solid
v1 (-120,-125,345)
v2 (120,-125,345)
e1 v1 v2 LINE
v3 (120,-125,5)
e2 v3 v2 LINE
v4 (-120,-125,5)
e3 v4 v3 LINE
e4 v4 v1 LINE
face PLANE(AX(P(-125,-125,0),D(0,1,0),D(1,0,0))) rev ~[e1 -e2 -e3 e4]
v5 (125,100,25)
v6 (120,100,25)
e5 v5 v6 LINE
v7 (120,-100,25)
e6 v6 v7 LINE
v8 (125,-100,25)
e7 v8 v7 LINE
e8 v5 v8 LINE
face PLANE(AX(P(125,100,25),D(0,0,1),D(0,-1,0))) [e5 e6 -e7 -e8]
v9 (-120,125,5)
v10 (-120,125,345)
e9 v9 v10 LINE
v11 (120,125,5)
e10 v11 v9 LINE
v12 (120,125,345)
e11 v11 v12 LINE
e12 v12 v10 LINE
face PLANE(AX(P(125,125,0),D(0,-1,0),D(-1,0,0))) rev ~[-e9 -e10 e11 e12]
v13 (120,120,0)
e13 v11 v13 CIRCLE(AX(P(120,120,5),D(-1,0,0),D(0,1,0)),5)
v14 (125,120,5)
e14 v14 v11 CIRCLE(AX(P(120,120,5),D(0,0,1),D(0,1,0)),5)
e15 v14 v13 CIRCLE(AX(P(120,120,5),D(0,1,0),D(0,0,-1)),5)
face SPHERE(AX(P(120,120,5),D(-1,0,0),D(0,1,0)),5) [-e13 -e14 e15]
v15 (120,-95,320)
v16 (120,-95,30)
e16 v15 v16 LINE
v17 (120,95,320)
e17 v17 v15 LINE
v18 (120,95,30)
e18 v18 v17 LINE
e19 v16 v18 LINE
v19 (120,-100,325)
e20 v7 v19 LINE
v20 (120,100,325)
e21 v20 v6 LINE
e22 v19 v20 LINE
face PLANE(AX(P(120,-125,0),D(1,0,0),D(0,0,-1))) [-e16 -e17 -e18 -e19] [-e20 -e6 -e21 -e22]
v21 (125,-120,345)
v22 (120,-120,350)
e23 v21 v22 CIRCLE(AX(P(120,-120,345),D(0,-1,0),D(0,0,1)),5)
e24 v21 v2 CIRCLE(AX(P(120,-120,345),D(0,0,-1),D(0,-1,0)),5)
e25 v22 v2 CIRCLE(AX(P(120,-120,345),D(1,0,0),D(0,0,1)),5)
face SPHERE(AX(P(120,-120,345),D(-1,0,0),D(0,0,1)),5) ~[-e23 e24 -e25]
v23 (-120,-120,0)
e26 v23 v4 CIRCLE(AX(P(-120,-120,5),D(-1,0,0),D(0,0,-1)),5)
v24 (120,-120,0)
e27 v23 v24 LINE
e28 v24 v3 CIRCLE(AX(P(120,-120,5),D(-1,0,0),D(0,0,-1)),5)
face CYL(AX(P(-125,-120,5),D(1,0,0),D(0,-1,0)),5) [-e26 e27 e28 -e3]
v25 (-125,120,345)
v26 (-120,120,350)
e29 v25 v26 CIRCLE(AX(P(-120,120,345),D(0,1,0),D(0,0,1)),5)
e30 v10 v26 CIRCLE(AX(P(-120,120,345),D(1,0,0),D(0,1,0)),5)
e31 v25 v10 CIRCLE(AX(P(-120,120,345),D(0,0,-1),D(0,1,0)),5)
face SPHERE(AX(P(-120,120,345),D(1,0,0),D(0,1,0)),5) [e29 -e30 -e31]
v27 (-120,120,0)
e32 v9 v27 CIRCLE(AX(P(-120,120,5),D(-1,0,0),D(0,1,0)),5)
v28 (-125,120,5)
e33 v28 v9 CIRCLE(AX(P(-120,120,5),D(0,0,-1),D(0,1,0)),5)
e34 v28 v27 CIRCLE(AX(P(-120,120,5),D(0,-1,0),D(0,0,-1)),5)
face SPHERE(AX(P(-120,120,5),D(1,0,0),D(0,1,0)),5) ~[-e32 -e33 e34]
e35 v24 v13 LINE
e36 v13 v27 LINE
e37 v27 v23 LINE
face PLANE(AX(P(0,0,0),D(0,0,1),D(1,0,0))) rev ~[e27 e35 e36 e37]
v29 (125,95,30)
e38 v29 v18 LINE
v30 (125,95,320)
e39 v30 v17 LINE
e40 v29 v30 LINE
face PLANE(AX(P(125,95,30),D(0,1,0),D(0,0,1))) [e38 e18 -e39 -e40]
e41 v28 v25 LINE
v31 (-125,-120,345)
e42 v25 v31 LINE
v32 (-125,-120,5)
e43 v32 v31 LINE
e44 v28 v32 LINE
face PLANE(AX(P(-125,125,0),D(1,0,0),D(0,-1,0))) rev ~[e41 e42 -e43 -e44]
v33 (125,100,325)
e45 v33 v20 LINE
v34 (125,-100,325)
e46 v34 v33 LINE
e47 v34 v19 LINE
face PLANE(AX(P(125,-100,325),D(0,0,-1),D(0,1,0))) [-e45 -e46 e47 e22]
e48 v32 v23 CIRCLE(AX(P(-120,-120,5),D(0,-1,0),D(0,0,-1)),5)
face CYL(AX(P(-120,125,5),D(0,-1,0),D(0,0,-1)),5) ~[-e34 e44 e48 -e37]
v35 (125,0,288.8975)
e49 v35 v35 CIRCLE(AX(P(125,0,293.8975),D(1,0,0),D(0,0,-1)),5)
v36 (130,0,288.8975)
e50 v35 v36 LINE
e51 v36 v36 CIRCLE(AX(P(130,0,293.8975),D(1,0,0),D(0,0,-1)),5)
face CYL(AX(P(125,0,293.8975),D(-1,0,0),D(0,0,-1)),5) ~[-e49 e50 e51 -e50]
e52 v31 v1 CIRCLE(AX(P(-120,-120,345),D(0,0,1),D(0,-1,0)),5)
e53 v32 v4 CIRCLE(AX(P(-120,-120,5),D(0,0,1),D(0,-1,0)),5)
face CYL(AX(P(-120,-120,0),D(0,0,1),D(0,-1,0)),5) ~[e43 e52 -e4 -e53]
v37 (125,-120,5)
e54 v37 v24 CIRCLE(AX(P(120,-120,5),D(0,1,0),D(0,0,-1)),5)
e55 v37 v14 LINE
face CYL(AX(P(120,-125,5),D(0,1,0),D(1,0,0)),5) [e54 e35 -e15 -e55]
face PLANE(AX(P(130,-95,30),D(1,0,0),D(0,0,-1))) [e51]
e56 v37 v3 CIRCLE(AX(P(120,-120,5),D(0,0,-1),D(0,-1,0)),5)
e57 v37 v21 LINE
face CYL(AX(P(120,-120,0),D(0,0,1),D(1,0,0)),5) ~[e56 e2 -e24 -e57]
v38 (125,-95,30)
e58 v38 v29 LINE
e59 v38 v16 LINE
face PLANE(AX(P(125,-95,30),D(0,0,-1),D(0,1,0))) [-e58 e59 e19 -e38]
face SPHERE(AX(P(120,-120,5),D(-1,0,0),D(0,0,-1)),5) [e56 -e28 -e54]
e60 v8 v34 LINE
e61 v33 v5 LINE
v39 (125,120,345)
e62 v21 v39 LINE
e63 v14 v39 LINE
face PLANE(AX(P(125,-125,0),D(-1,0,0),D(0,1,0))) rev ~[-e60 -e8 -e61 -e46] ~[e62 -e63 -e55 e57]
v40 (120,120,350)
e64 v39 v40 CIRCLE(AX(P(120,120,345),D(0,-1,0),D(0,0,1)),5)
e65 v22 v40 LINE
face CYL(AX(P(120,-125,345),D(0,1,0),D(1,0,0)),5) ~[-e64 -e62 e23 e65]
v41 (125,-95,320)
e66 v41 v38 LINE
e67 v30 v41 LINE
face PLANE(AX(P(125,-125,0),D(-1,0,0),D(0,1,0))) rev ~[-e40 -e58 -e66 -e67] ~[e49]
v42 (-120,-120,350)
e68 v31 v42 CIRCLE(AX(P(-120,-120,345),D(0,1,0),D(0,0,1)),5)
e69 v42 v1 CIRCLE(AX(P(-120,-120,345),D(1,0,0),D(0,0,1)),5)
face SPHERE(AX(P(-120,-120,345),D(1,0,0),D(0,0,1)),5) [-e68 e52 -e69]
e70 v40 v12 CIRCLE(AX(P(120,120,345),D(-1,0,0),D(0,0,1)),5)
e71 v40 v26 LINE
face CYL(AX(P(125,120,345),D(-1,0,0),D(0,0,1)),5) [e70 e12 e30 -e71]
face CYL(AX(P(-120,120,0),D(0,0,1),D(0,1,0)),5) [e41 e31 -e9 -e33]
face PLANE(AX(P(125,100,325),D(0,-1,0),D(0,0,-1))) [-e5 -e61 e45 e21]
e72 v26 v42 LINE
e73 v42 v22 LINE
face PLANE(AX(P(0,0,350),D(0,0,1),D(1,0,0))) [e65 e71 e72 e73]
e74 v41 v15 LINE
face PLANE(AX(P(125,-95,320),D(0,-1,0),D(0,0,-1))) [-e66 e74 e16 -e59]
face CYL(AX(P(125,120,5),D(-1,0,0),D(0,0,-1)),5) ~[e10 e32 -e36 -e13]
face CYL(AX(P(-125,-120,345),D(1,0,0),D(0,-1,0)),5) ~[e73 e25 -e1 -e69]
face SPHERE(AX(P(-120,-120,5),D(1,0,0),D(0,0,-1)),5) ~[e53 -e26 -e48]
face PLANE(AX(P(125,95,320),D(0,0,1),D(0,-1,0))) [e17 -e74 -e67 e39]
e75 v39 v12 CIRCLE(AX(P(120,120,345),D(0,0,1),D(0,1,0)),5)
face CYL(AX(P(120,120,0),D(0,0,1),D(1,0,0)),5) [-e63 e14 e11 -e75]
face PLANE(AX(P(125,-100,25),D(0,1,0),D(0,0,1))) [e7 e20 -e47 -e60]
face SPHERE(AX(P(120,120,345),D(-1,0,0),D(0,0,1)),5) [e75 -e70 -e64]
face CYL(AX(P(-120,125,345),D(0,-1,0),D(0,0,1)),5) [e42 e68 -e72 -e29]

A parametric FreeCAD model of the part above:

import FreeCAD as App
import Part
import Sketcher
Q = App.Units.Quantity


def edges_at(feature, points):
    """Names of the edges that pass closest to the given points."""
    edges = feature.Shape.Edges
    near = lambda p: min(range(len(edges)), key=lambda i: edges[i].distToShape(Part.Vertex(*p))[0])
    return sorted({f"Edge{near(p) + 1}" for p in points})


def add_polygon(sketch, points):
    """Adds a closed chain of lines whose ends are joined by coincident constraints."""
    first, n = sketch.GeometryCount, len(points)
    for a, b in zip(points, points[1:] + points[:1]):
        sketch.addGeometry(Part.LineSegment(App.Vector(*a, 0), App.Vector(*b, 0)), False)
    for i in range(n):
        sketch.addConstraint(Sketcher.Constraint("Coincident", first + i, 2, first + (i + 1) % n, 1))

doc = App.newDocument("Part")
body = doc.addObject("PartDesign::Body", "Body")

sketch1 = body.newObject("Sketcher::SketchObject", "Sketch")
sketch1.AttachmentSupport = (doc.getObject("XY_Plane"), [""])
sketch1.MapMode = "FlatFace"
add_polygon(sketch1, [(125, -125), (125, 125), (-125, 125), (-125, -125)])
sketch1.addConstraint([
    Sketcher.Constraint("Vertical", 0),
    Sketcher.Constraint("Horizontal", 1),
    Sketcher.Constraint("Vertical", 2),
    Sketcher.Constraint("Horizontal", 3),
    Sketcher.Constraint("Symmetric", 0, 2, 2, 2, -1, 1),
    Sketcher.Constraint("Equal", 3, 0),
    Sketcher.Constraint("DistanceX", 1, 2, 1, 1, Q("250 mm")),
])
pad1 = body.newObject("PartDesign::Pad", "Pad")
pad1.Profile = sketch1
pad1.Length = 350

sketch2 = body.newObject("Sketcher::SketchObject", "Sketch001")
sketch2.AttachmentSupport = (doc.getObject("YZ_Plane"), [""])
sketch2.MapMode = "FlatFace"
sketch2.AttachmentOffset = App.Placement(App.Vector(0, 0, 125), App.Rotation())
add_polygon(sketch2, [(100, 25), (100, 325), (-100, 325), (-100, 25)])
add_polygon(sketch2, [(95, 320), (95, 30), (-95, 30), (-95, 320)])
sketch2.addConstraint([
    Sketcher.Constraint("Vertical", 0),
    Sketcher.Constraint("Horizontal", 1),
    Sketcher.Constraint("Vertical", 2),
    Sketcher.Constraint("Horizontal", 3),
    Sketcher.Constraint("Vertical", 4),
    Sketcher.Constraint("Horizontal", 5),
    Sketcher.Constraint("Vertical", 6),
    Sketcher.Constraint("Horizontal", 7),
    Sketcher.Constraint("DistanceY", -1, 1, 2, 2, Q("25 mm")),
    Sketcher.Constraint("DistanceX", 4, 2, 3, 2, Q("5 mm")),
    Sketcher.Constraint("DistanceY", 3, 2, 4, 2, Q("5 mm")),
    Sketcher.Constraint("DistanceX", 2, 2, 5, 2, Q("5 mm")),
    Sketcher.Constraint("DistanceY", 6, 2, 1, 2, Q("5 mm")),
    Sketcher.Constraint("DistanceX", 1, 2, 1, 1, Q("200 mm")),
    Sketcher.Constraint("DistanceY", 0, 1, 0, 2, Q("300 mm")),
    Sketcher.Constraint("DistanceX", -1, 1, 0, 2, Q("100 mm")),
])
pocket1 = body.newObject("PartDesign::Pocket", "Pocket")
pocket1.Profile = sketch2
pocket1.Length = 5

sketch3 = body.newObject("Sketcher::SketchObject", "Sketch002")
sketch3.AttachmentSupport = (doc.getObject("YZ_Plane"), [""])
sketch3.MapMode = "FlatFace"
sketch3.AttachmentOffset = App.Placement(App.Vector(0, 0, 125), App.Rotation())
sketch3.addGeometry(Part.Circle(App.Vector(0, 294, 0), App.Vector(0, 0, 1), 5), False)
sketch3.addConstraint([
    Sketcher.Constraint("PointOnObject", 0, 3, -2),
    Sketcher.Constraint("Diameter", 0, Q("10 mm")),
    Sketcher.Constraint("DistanceY", -1, 1, 0, 3, Q("293.8975 mm")),
])
pad2 = body.newObject("PartDesign::Pad", "Pad001")
pad2.Profile = sketch3
pad2.Length = 5
doc.recompute()

fillet = body.newObject("PartDesign::Fillet", "Fillet")
fillet.Base = (pad2, edges_at(pad2, [
    (0, 125, 350),
    (0, 125, 0),
    (0, -125, 350),
    (0, -125, 0),
    (-125, 125, 175),
    (-125, 0, 0),
    (-125, 0, 350),
    (-125, -125, 175),
    (125, 0, 350),
    (125, 125, 175),
    (125, 0, 0),
    (125, -125, 175),
]))
fillet.Radius = 5

doc.recompute()
